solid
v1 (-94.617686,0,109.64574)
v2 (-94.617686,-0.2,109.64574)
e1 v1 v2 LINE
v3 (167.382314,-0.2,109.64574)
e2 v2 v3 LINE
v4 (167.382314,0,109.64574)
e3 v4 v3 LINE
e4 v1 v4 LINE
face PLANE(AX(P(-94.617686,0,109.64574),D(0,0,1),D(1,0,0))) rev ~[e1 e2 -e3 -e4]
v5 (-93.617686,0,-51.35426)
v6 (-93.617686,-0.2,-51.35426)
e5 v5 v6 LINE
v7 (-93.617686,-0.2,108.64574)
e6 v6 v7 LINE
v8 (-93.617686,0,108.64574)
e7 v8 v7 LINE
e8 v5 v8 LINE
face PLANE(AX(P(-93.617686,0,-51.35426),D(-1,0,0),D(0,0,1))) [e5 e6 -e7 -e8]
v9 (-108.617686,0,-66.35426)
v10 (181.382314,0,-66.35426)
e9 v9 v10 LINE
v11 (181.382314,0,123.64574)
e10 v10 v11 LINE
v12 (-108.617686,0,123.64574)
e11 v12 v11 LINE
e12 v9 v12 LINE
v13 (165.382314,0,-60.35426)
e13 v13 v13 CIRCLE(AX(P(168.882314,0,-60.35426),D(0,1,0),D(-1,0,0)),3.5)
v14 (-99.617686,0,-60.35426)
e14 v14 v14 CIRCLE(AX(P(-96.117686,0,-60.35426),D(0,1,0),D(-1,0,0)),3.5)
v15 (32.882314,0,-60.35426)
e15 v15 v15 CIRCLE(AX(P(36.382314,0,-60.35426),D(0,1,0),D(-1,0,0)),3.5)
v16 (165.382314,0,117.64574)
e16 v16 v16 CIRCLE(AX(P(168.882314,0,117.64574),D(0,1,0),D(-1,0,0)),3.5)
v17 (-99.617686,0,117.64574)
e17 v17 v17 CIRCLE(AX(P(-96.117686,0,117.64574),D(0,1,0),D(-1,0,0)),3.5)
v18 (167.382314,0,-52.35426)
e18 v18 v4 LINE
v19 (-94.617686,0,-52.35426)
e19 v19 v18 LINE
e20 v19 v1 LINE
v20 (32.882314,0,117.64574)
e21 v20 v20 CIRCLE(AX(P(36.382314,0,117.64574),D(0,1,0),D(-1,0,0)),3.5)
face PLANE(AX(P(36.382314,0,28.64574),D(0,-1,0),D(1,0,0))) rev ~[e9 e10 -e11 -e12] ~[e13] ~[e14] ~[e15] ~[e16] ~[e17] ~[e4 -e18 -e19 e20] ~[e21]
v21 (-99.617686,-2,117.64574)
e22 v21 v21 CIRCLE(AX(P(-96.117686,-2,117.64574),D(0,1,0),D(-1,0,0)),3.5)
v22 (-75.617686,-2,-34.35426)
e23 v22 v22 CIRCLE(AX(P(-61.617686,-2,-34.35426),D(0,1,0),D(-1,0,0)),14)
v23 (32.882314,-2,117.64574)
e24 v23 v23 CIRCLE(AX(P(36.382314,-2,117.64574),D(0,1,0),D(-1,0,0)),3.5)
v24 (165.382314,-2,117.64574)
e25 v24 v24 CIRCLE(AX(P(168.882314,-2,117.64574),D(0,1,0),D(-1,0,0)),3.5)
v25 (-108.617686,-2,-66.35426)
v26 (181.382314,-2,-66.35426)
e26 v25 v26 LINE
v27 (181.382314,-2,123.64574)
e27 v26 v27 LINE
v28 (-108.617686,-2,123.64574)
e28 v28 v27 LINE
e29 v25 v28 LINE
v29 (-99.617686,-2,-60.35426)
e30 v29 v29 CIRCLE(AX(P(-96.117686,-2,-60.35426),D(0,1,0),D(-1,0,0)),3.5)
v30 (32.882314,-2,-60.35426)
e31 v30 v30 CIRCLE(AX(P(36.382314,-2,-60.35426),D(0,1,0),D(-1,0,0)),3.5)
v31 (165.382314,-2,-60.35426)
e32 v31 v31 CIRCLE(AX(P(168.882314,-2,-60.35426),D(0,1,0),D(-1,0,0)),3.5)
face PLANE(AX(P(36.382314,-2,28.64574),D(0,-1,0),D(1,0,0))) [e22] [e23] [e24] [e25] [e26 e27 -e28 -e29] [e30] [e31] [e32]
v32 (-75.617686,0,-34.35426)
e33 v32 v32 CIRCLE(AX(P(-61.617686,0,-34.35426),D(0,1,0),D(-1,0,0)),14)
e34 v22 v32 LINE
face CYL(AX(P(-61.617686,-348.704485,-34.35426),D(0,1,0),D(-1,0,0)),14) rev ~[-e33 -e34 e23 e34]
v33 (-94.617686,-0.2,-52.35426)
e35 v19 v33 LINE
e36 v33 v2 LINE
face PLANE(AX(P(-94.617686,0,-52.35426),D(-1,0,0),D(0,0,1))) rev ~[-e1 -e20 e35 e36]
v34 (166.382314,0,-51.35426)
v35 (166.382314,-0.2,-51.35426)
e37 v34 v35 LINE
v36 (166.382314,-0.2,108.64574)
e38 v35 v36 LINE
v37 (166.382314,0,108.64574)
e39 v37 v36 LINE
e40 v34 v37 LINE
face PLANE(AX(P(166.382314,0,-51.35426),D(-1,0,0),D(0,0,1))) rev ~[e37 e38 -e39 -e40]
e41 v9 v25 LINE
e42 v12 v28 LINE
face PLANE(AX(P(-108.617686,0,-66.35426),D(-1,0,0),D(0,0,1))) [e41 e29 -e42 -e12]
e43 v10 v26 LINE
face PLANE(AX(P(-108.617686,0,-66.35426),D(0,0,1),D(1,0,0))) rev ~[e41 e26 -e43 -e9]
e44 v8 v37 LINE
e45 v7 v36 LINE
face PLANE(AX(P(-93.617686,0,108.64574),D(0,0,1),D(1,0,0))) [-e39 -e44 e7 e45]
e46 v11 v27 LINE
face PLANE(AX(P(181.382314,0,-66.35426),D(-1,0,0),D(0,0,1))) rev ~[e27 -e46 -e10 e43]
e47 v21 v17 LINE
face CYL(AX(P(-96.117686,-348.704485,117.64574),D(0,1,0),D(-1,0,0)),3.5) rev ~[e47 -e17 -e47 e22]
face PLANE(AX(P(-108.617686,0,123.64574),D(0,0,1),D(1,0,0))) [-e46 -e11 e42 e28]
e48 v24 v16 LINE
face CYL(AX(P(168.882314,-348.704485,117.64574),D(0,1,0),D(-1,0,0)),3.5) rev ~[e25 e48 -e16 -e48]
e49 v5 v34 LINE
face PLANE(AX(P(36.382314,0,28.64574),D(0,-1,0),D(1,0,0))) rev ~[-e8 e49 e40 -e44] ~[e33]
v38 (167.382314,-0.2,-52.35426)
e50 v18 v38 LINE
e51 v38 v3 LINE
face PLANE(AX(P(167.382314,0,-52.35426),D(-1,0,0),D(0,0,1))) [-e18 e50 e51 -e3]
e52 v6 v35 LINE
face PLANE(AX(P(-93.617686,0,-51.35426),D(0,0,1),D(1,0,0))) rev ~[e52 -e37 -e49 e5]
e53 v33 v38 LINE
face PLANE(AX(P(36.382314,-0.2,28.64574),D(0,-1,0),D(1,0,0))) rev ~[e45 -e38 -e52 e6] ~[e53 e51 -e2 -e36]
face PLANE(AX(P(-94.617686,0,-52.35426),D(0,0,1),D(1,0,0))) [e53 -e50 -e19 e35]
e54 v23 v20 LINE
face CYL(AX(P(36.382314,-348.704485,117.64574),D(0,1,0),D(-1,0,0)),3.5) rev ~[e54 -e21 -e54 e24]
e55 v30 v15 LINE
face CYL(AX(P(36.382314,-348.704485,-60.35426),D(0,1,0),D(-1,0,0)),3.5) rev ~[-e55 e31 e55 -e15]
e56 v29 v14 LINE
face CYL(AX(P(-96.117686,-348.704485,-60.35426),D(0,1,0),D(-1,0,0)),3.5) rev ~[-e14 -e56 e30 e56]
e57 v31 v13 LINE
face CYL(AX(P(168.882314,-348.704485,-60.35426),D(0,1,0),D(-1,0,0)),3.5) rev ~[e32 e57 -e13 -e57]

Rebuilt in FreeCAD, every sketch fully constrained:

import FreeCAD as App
import Part
import Sketcher

V = App.Vector
Q = App.Units.Quantity


def add_polygon(sketch, points):
    """Adds a closed chain of lines whose ends are joined by coincident constraints."""
    first, n = sketch.GeometryCount, len(points)
    for a, b in zip(points, points[1:] + points[:1]):
        sketch.addGeometry(Part.LineSegment(App.Vector(*a, 0), App.Vector(*b, 0)), False)
    for i in range(n):
        sketch.addConstraint(Sketcher.Constraint("Coincident", first + i, 2, first + (i + 1) % n, 1))

doc = App.newDocument("Part")
body = doc.addObject("PartDesign::Body", "Body")

sketch1 = doc.addObject("Sketcher::SketchObject", "Sketch")
body.addObject(sketch1)
sketch1.AttachmentSupport = (doc.XZ_Plane, [""])
sketch1.MapMode = "FlatFace"
add_polygon(sketch1, [(-108.617686, 123.64574), (-108.617686, -66.35426), (181.382314, -66.35426), (181.382314, 123.64574)])
sketch1.addConstraint([
    Sketcher.Constraint("Vertical", 0),
    Sketcher.Constraint("Horizontal", 1),
    Sketcher.Constraint("Vertical", 2),
    Sketcher.Constraint("Horizontal", 3),
    Sketcher.Constraint("DistanceX", 1, 1, 1, 2, Q("290 mm")),
    Sketcher.Constraint("DistanceY", 0, 2, 0, 1, Q("190 mm")),
    Sketcher.Constraint("DistanceY", 0, 2, -1, 1, Q("66.35426 mm")),
    Sketcher.Constraint("DistanceX", 0, 2, -1, 1, Q("108.617686 mm")),
])
pad1 = doc.addObject("PartDesign::Pad", "Pad")
body.addObject(pad1)
pad1.Profile = sketch1
pad1.Length = 2

sketch2 = doc.addObject("Sketcher::SketchObject", "Sketch001")
body.addObject(sketch2)
sketch2.AttachmentSupport = (doc.XZ_Plane, [""])
sketch2.MapMode = "FlatFace"
sketch2.AttachmentOffset = App.Placement(V(0, 0, 2), App.Rotation())
sketch2.addGeometry([
    Part.Circle(V(-96.117686, 117.64574, 0), V(0, 0, 1), 3.5),
    Part.Circle(V(36.382314, 117.64574, 0), V(0, 0, 1), 3.5),
    Part.Circle(V(168.882314, 117.64574, 0), V(0, 0, 1), 3.5),
    Part.Circle(V(168.882314, -60.35426, 0), V(0, 0, 1), 3.5),
    Part.Circle(V(36.382314, -60.35426, 0), V(0, 0, 1), 3.5),
    Part.Circle(V(-96.117686, -60.35426, 0), V(0, 0, 1), 3.5),
], False)
sketch2.addConstraint([
    Sketcher.Constraint("Equal", 0, 1),
    Sketcher.Constraint("Equal", 1, 2),
    Sketcher.Constraint("Equal", 2, 3),
    Sketcher.Constraint("Equal", 3, 4),
    Sketcher.Constraint("Equal", 4, 5),
    Sketcher.Constraint("Horizontal", 0, 3, 1, 3),
    Sketcher.Constraint("Horizontal", 1, 3, 2, 3),
    Sketcher.Constraint("Horizontal", 3, 3, 4, 3),
    Sketcher.Constraint("Horizontal", 4, 3, 5, 3),
    Sketcher.Constraint("Vertical", 2, 3, 3, 3),
    Sketcher.Constraint("Vertical", 1, 3, 4, 3),
    Sketcher.Constraint("Vertical", 0, 3, 5, 3),
    Sketcher.Constraint("Diameter", 0, Q("7 mm")),
    Sketcher.Constraint("DistanceX", 0, 3, 2, 3, Q("265 mm")),
    Sketcher.Constraint("DistanceY", 3, 3, 2, 3, Q("178 mm")),
    Sketcher.Constraint("DistanceX", 0, 3, 1, 3, Q("132.5 mm")),
    Sketcher.Constraint("DistanceY", -1, 1, 0, 3, Q("117.64574 mm")),
    Sketcher.Constraint("DistanceX", 0, 3, -1, 1, Q("96.117686 mm")),
])
doc.recompute()
hole = doc.addObject("PartDesign::Hole", "Hole")
body.addObject(hole)
hole.Profile = sketch2
hole.ThreadType = "None"
hole.Diameter = 7
hole.DepthType = "ThroughAll"

sketch3 = doc.addObject("Sketcher::SketchObject", "Sketch002")
body.addObject(sketch3)
sketch3.AttachmentSupport = (doc.XZ_Plane, [""])
sketch3.MapMode = "FlatFace"
add_polygon(sketch3, [(-94.617686, 109.64574), (-94.617686, -52.35426), (167.382314, -52.35426), (167.382314, 109.64574)])
add_polygon(sketch3, [(166.382314, -51.35426), (-93.617686, -51.35426), (-93.617686, 108.64574), (166.382314, 108.64574)])
sketch3.addConstraint([
    Sketcher.Constraint("Vertical", 0),
    Sketcher.Constraint("Horizontal", 1),
    Sketcher.Constraint("Vertical", 2),
    Sketcher.Constraint("Horizontal", 3),
    Sketcher.Constraint("Horizontal", 4),
    Sketcher.Constraint("Vertical", 5),
    Sketcher.Constraint("Horizontal", 6),
    Sketcher.Constraint("Vertical", 7),
    Sketcher.Constraint("DistanceX", 1, 1, 1, 2, Q("262 mm")),
    Sketcher.Constraint("DistanceX", 4, 2, 4, 1, Q("260 mm")),
    Sketcher.Constraint("DistanceY", 0, 2, 0, 1, Q("162 mm")),
    Sketcher.Constraint("DistanceY", 5, 1, 5, 2, Q("160 mm")),
    Sketcher.Constraint("DistanceX", 0, 2, 4, 2, Q("1 mm")),
    Sketcher.Constraint("DistanceY", 0, 2, 4, 2, Q("1 mm")),
    Sketcher.Constraint("DistanceY", 0, 2, -1, 1, Q("52.35426 mm")),
    Sketcher.Constraint("DistanceX", 0, 2, -1, 1, Q("94.617686 mm")),
])
pocket1 = doc.addObject("PartDesign::Pocket", "Pocket")
body.addObject(pocket1)
pocket1.Profile = sketch3
pocket1.Length = 0.2
pocket1.Reversed = True

sketch4 = doc.addObject("Sketcher::SketchObject", "Sketch003")
body.addObject(sketch4)
sketch4.AttachmentSupport = (doc.XZ_Plane, [""])
sketch4.MapMode = "FlatFace"
sketch4.AttachmentOffset = App.Placement(V(0, 0, 2), App.Rotation())
sketch4.addGeometry(Part.Circle(V(-61.617686, -34.35426, 0), V(0, 0, 1), 14), False)
sketch4.addConstraint([
    Sketcher.Constraint("Diameter", 0, Q("28 mm")),
    Sketcher.Constraint("DistanceY", 0, 3, -1, 1, Q("34.35426 mm")),
    Sketcher.Constraint("DistanceX", 0, 3, -1, 1, Q("61.617686 mm")),
])
doc.recompute()
hole2 = doc.addObject("PartDesign::Hole", "Hole001")
body.addObject(hole2)
hole2.Profile = sketch4
hole2.ThreadType = "None"
hole2.Diameter = 28
hole2.DepthType = "ThroughAll"

doc.recompute()
